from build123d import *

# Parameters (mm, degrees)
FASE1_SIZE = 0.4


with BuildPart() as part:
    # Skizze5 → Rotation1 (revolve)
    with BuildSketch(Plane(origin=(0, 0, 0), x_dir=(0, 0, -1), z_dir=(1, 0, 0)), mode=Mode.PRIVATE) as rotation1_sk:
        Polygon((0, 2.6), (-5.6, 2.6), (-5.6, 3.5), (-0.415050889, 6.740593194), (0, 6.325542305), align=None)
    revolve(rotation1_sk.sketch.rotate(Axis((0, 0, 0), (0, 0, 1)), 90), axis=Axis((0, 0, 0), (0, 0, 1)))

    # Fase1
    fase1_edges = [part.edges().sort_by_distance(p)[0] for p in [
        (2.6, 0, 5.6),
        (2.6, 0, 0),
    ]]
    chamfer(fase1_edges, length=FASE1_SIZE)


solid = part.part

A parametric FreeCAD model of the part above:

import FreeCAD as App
import Part
import Sketcher
from FreeCAD import Vector
Q = App.Units.Quantity


def edges_at(feature, points):
    """Names of the edges that pass closest to the given points."""
    edges = feature.Shape.Edges
    near = lambda p: min(range(len(edges)), key=lambda i: edges[i].distToShape(Part.Vertex(*p))[0])
    return sorted({f"Edge{near(p) + 1}" for p in points})


def add_polygon(sketch, points):
    """Adds a closed chain of lines whose ends are joined by coincident constraints."""
    first, n = sketch.GeometryCount, len(points)
    for a, b in zip(points, points[1:] + points[:1]):
        sketch.addGeometry(Part.LineSegment(App.Vector(*a, 0), App.Vector(*b, 0)), False)
    for i in range(n):
        sketch.addConstraint(Sketcher.Constraint("Coincident", first + i, 2, first + (i + 1) % n, 1))

doc = App.newDocument("Part")
body = doc.addObject("PartDesign::Body", "Body")

# Sketch on YZ plane
sketch1 = body.newObject("Sketcher::SketchObject", "Sketch")
sketch1.AttachmentSupport = (doc.getObject("YZ_Plane"), [""])
sketch1.MapMode = "FlatFace"
add_polygon(sketch1, [(2.6, 5.6), (2.6, 0), (6.325542, 0), (6.740593, 0.415051), (3.5, 5.6)])  # lines 0-4
sketch1.addConstraint([
    Sketcher.Constraint("Vertical", 0),
    Sketcher.Constraint("Horizontal", 1),
    Sketcher.Constraint("Horizontal", 4),
    Sketcher.Constraint("PointOnObject", 0, 2, -1),
    Sketcher.Constraint("Angle", 2, Q("45 deg")),
    Sketcher.Constraint("DistanceX", 4, 2, 4, 1, Q("0.9 mm")),
    Sketcher.Constraint("DistanceY", 0, 2, 0, 1, Q("5.6 mm")),
    Sketcher.Constraint("DistanceX", -1, 1, 0, 2, Q("2.6 mm")),
    Sketcher.Constraint("Distance", 2, Q("0.586971 mm")),
    Sketcher.Constraint("Distance", 3, Q("6.114339 mm")),
])
revolution = body.newObject("PartDesign::Revolution", "Revolution")
revolution.Profile = sketch1
revolution.ReferenceAxis = (sketch1, ["V_Axis"])
revolution.Angle = 360
doc.recompute()

chamfer = body.newObject("PartDesign::Chamfer", "Chamfer")
chamfer.Base = (revolution, edges_at(revolution, [(2.6, 0, 5.6), (2.6, 0, 0)]))
chamfer.Size = 0.4

doc.recompute()
